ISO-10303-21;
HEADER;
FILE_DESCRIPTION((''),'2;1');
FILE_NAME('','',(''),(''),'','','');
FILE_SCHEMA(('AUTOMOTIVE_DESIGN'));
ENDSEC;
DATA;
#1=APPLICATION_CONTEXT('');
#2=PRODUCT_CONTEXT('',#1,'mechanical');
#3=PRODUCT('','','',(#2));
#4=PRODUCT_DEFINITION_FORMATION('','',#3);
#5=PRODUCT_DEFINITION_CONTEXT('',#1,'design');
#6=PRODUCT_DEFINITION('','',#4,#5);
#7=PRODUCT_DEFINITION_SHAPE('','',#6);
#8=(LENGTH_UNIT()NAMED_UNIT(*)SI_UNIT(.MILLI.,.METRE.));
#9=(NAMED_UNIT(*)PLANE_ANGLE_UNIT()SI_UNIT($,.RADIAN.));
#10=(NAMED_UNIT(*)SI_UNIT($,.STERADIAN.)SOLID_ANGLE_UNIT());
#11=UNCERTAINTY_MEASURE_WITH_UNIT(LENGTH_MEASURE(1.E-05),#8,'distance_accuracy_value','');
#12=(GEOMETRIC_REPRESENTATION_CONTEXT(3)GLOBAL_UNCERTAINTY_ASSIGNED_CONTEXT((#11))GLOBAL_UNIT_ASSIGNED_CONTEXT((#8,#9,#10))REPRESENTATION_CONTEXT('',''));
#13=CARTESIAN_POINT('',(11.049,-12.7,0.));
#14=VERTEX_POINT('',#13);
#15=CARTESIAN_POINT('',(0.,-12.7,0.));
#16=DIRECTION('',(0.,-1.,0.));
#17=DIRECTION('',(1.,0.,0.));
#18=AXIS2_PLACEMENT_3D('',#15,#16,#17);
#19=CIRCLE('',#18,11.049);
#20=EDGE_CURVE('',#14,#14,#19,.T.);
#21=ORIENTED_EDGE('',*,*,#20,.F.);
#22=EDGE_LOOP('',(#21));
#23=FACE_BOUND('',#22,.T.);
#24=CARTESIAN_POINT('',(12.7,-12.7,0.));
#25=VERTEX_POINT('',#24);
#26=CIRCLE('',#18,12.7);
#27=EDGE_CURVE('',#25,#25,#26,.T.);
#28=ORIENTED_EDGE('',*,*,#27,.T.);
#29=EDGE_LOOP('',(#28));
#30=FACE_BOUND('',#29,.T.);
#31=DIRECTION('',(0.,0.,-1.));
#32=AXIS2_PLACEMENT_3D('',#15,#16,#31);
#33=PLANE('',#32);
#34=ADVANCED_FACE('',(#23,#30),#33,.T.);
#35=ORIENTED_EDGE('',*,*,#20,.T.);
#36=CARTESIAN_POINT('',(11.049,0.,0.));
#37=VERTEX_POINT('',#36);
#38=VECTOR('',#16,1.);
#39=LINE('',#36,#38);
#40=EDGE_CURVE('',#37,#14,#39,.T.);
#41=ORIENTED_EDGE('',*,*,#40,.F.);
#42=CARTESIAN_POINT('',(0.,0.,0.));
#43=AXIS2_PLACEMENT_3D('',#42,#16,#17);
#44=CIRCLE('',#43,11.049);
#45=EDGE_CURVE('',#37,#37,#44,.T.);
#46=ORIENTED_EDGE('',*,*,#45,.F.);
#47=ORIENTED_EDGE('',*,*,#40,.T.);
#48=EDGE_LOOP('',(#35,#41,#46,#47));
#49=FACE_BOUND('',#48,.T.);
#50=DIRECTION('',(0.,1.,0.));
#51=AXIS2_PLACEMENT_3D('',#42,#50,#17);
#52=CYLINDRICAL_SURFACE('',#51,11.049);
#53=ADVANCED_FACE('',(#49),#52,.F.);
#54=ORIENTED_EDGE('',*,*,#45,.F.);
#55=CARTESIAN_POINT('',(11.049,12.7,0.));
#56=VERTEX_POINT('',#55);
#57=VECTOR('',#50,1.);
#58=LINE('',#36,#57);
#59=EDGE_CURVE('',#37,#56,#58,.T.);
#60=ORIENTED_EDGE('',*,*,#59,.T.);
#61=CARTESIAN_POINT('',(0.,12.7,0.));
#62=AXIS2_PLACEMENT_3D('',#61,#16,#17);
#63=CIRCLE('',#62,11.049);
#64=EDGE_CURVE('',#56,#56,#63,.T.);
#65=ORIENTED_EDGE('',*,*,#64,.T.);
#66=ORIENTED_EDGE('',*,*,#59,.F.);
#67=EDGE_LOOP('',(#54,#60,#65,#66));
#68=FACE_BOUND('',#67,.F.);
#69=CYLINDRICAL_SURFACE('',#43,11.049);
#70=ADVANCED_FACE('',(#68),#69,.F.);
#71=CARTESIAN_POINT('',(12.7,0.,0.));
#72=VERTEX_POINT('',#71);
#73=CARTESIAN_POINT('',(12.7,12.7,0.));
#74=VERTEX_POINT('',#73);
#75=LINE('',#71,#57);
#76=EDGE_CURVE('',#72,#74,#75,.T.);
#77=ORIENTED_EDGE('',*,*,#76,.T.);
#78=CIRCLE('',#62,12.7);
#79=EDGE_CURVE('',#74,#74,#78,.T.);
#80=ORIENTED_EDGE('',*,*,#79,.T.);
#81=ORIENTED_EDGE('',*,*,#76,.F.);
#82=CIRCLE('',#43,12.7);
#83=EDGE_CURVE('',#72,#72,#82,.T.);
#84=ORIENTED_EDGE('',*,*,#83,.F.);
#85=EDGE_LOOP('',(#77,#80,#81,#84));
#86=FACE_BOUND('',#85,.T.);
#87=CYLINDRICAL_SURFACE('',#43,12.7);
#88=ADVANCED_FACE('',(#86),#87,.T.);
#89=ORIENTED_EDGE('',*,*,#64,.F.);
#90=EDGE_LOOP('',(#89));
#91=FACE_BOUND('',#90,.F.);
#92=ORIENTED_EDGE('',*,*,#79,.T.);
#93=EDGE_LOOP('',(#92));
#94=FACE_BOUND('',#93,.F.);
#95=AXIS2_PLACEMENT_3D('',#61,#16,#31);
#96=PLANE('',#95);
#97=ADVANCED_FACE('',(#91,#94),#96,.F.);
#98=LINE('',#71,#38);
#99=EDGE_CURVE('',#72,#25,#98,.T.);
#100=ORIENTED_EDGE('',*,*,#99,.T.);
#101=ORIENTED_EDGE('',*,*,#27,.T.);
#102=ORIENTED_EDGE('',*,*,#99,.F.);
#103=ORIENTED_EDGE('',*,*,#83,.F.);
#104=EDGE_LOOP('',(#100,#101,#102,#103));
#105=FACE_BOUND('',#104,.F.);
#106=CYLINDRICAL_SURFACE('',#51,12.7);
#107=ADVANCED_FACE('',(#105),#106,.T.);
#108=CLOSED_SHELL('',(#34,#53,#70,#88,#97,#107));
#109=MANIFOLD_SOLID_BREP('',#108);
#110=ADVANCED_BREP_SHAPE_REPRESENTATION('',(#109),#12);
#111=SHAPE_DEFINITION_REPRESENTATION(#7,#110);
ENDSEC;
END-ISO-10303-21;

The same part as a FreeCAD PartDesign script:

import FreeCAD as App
import Part
import Sketcher

V = App.Vector
Q = App.Units.Quantity

doc = App.newDocument("Part")
body = doc.addObject("PartDesign::Body", "Body")

sketch1 = body.newObject("Sketcher::SketchObject", "Sketch")
sketch1.AttachmentSupport = (doc.getObject("XZ_Plane"), [""])
sketch1.MapMode = "FlatFace"
sketch1.addGeometry([
    Part.Circle(V(0, 0, 0), V(0, 0, 1), 12.7),
    Part.Circle(V(0, 0, 0), V(0, 0, 1), 11.049),
], False)
sketch1.addConstraint([
    Sketcher.Constraint("Coincident", 0, 3, -1, 1),
    Sketcher.Constraint("Coincident", 1, 3, -1, 1),
    Sketcher.Constraint("Diameter", 0, Q("1 in")),
    Sketcher.Constraint("Diameter", 1, Q("0.87 in")),
])
pad1 = body.newObject("PartDesign::Pad", "Pad")
pad1.Profile = sketch1
pad1.Length = Q("1 in")
pad1.Midplane = True

doc.recompute()
